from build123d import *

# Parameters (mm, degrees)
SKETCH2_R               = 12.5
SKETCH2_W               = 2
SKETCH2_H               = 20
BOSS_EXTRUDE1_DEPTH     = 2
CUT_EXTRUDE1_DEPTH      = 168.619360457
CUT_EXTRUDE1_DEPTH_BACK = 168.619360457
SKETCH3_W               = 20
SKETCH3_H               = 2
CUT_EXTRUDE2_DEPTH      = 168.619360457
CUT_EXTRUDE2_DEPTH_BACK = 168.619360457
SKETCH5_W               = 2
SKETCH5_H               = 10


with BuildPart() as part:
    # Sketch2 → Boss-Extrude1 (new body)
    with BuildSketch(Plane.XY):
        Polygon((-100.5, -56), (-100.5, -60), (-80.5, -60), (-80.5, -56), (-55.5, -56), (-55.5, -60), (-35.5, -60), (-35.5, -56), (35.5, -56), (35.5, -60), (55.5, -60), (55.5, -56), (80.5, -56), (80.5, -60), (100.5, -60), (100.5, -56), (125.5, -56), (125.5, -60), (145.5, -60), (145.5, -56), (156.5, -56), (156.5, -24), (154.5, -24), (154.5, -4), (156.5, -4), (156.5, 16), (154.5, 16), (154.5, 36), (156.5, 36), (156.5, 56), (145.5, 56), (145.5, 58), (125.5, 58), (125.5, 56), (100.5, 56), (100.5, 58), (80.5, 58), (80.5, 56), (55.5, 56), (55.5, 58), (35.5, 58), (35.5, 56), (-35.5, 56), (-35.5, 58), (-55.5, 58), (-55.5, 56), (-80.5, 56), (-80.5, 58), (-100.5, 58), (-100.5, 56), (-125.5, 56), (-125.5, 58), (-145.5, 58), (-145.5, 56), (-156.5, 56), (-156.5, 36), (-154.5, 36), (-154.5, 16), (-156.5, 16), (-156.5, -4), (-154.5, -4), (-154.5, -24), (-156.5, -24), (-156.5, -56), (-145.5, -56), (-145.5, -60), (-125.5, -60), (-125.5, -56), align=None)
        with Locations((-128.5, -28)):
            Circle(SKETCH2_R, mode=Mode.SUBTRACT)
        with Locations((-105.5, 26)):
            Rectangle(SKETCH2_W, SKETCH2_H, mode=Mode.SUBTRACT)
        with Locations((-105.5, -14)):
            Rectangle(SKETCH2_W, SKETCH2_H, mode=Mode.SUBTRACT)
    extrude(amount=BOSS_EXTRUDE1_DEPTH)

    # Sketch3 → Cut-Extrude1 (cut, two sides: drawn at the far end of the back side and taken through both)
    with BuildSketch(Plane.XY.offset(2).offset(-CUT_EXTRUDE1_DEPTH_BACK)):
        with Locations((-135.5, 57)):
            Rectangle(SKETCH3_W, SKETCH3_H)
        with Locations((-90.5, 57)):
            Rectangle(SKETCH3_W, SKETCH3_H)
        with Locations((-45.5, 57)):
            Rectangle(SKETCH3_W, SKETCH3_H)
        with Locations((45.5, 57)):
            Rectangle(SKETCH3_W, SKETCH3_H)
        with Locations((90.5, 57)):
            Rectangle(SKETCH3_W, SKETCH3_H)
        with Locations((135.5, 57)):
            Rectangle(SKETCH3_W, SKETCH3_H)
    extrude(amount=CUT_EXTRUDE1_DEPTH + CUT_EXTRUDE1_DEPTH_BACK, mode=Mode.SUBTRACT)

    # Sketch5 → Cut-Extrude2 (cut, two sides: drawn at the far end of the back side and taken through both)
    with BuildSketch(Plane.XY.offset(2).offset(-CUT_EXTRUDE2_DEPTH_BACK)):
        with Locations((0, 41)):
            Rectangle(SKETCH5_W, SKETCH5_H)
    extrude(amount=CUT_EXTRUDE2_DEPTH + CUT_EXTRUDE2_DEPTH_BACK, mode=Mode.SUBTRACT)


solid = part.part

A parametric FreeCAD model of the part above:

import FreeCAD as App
import Part
import Sketcher

V = App.Vector
Q = App.Units.Quantity

doc = App.newDocument("Part")
body = doc.addObject("PartDesign::Body", "Body")

# Sketch on XY plane
sketch1 = doc.addObject("Sketcher::SketchObject", "Sketch")
body.addObject(sketch1)
sketch1.AttachmentSupport = (doc.XY_Plane, [""])
sketch1.MapMode = "FlatFace"
sketch1.addGeometry([
    Part.LineSegment(V(-100.5, -56, 0), V(-100.5, -60, 0)),  # 0
    Part.LineSegment(V(-100.5, -60, 0), V(-80.5, -60, 0)),  # 1
    Part.LineSegment(V(-80.5, -60, 0), V(-80.5, -56, 0)),  # 2
    Part.LineSegment(V(-80.5, -56, 0), V(-55.5, -56, 0)),  # 3
    Part.LineSegment(V(-55.5, -56, 0), V(-55.5, -60, 0)),  # 4
    Part.LineSegment(V(-55.5, -60, 0), V(-35.5, -60, 0)),  # 5
    Part.LineSegment(V(-35.5, -60, 0), V(-35.5, -56, 0)),  # 6
    Part.LineSegment(V(-35.5, -56, 0), V(35.5, -56, 0)),  # 7
    Part.LineSegment(V(35.5, -56, 0), V(35.5, -60, 0)),  # 8
    Part.LineSegment(V(35.5, -60, 0), V(55.5, -60, 0)),  # 9
    Part.LineSegment(V(55.5, -60, 0), V(55.5, -56, 0)),  # 10
    Part.LineSegment(V(55.5, -56, 0), V(80.5, -56, 0)),  # 11
    Part.LineSegment(V(80.5, -56, 0), V(80.5, -60, 0)),  # 12
    Part.LineSegment(V(80.5, -60, 0), V(100.5, -60, 0)),  # 13
    Part.LineSegment(V(100.5, -60, 0), V(100.5, -56, 0)),  # 14
    Part.LineSegment(V(100.5, -56, 0), V(125.5, -56, 0)),  # 15
    Part.LineSegment(V(125.5, -56, 0), V(125.5, -60, 0)),  # 16
    Part.LineSegment(V(125.5, -60, 0), V(145.5, -60, 0)),  # 17
    Part.LineSegment(V(145.5, -60, 0), V(145.5, -56, 0)),  # 18
    Part.LineSegment(V(145.5, -56, 0), V(156.5, -56, 0)),  # 19
    Part.LineSegment(V(156.5, -56, 0), V(156.5, -24, 0)),  # 20
    Part.LineSegment(V(156.5, -24, 0), V(154.5, -24, 0)),  # 21
    Part.LineSegment(V(154.5, -24, 0), V(154.5, -4, 0)),  # 22
    Part.LineSegment(V(154.5, -4, 0), V(156.5, -4, 0)),  # 23
    Part.LineSegment(V(156.5, -4, 0), V(156.5, 16, 0)),  # 24
    Part.LineSegment(V(156.5, 16, 0), V(154.5, 16, 0)),  # 25
    Part.LineSegment(V(154.5, 16, 0), V(154.5, 36, 0)),  # 26
    Part.LineSegment(V(154.5, 36, 0), V(156.5, 36, 0)),  # 27
    Part.LineSegment(V(156.5, 36, 0), V(156.5, 56, 0)),  # 28
    Part.LineSegment(V(156.5, 56, 0), V(145.5, 56, 0)),  # 29
    Part.LineSegment(V(145.5, 56, 0), V(145.5, 58, 0)),  # 30
    Part.LineSegment(V(145.5, 58, 0), V(125.5, 58, 0)),  # 31
    Part.LineSegment(V(125.5, 58, 0), V(125.5, 56, 0)),  # 32
    Part.LineSegment(V(125.5, 56, 0), V(100.5, 56, 0)),  # 33
    Part.LineSegment(V(100.5, 56, 0), V(100.5, 58, 0)),  # 34
    Part.LineSegment(V(100.5, 58, 0), V(80.5, 58, 0)),  # 35
    Part.LineSegment(V(80.5, 58, 0), V(80.5, 56, 0)),  # 36
    Part.LineSegment(V(80.5, 56, 0), V(55.5, 56, 0)),  # 37
    Part.LineSegment(V(55.5, 56, 0), V(55.5, 58, 0)),  # 38
    Part.LineSegment(V(55.5, 58, 0), V(35.5, 58, 0)),  # 39
    Part.LineSegment(V(35.5, 58, 0), V(35.5, 56, 0)),  # 40
    Part.LineSegment(V(35.5, 56, 0), V(-35.5, 56, 0)),  # 41
    Part.LineSegment(V(-35.5, 56, 0), V(-35.5, 58, 0)),  # 42
    Part.LineSegment(V(-35.5, 58, 0), V(-55.5, 58, 0)),  # 43
    Part.LineSegment(V(-55.5, 58, 0), V(-55.5, 56, 0)),  # 44
    Part.LineSegment(V(-55.5, 56, 0), V(-80.5, 56, 0)),  # 45
    Part.LineSegment(V(-80.5, 56, 0), V(-80.5, 58, 0)),  # 46
    Part.LineSegment(V(-80.5, 58, 0), V(-100.5, 58, 0)),  # 47
    Part.LineSegment(V(-100.5, 58, 0), V(-100.5, 56, 0)),  # 48
    Part.LineSegment(V(-100.5, 56, 0), V(-125.5, 56, 0)),  # 49
    Part.LineSegment(V(-125.5, 56, 0), V(-125.5, 58, 0)),  # 50
    Part.LineSegment(V(-125.5, 58, 0), V(-145.5, 58, 0)),  # 51
    Part.LineSegment(V(-145.5, 58, 0), V(-145.5, 56, 0)),  # 52
    Part.LineSegment(V(-145.5, 56, 0), V(-156.5, 56, 0)),  # 53
    Part.LineSegment(V(-156.5, 56, 0), V(-156.5, 36, 0)),  # 54
    Part.LineSegment(V(-156.5, 36, 0), V(-154.5, 36, 0)),  # 55
    Part.LineSegment(V(-154.5, 36, 0), V(-154.5, 16, 0)),  # 56
    Part.LineSegment(V(-154.5, 16, 0), V(-156.5, 16, 0)),  # 57
    Part.LineSegment(V(-156.5, 16, 0), V(-156.5, -4, 0)),  # 58
    Part.LineSegment(V(-156.5, -4, 0), V(-154.5, -4, 0)),  # 59
    Part.LineSegment(V(-154.5, -4, 0), V(-154.5, -24, 0)),  # 60
    Part.LineSegment(V(-154.5, -24, 0), V(-156.5, -24, 0)),  # 61
    Part.LineSegment(V(-156.5, -24, 0), V(-156.5, -56, 0)),  # 62
    Part.LineSegment(V(-156.5, -56, 0), V(-145.5, -56, 0)),  # 63
    Part.LineSegment(V(-145.5, -56, 0), V(-145.5, -60, 0)),  # 64
    Part.LineSegment(V(-145.5, -60, 0), V(-125.5, -60, 0)),  # 65
    Part.LineSegment(V(-125.5, -60, 0), V(-125.5, -56, 0)),  # 66
    Part.LineSegment(V(-125.5, -56, 0), V(-100.5, -56, 0)),  # 67
    Part.Circle(V(-128.5, -28, 0), V(0, 0, 1), 12.5),  # 68
    Part.LineSegment(V(-104.5, -24, 0), V(-106.5, -24, 0)),  # 69
    Part.LineSegment(V(-106.5, -24, 0), V(-106.5, -4, 0)),  # 70
    Part.LineSegment(V(-106.5, -4, 0), V(-104.5, -4, 0)),  # 71
    Part.LineSegment(V(-104.5, -4, 0), V(-104.5, -24, 0)),  # 72
    Part.LineSegment(V(-104.5, 16, 0), V(-106.5, 16, 0)),  # 73
    Part.LineSegment(V(-106.5, 16, 0), V(-106.5, 36, 0)),  # 74
    Part.LineSegment(V(-106.5, 36, 0), V(-104.5, 36, 0)),  # 75
    Part.LineSegment(V(-104.5, 36, 0), V(-104.5, 16, 0)),  # 76
], False)
sketch1.addConstraint([
    Sketcher.Constraint("Coincident", 0, 2, 1, 1),
    Sketcher.Constraint("Coincident", 1, 2, 2, 1),
    Sketcher.Constraint("Coincident", 2, 2, 3, 1),
    Sketcher.Constraint("Coincident", 3, 2, 4, 1),
    Sketcher.Constraint("Coincident", 4, 2, 5, 1),
    Sketcher.Constraint("Coincident", 5, 2, 6, 1),
    Sketcher.Constraint("Coincident", 6, 2, 7, 1),
    Sketcher.Constraint("Coincident", 7, 2, 8, 1),
    Sketcher.Constraint("Coincident", 8, 2, 9, 1),
    Sketcher.Constraint("Coincident", 9, 2, 10, 1),
    Sketcher.Constraint("Coincident", 10, 2, 11, 1),
    Sketcher.Constraint("Coincident", 11, 2, 12, 1),
    Sketcher.Constraint("Coincident", 12, 2, 13, 1),
    Sketcher.Constraint("Coincident", 13, 2, 14, 1),
    Sketcher.Constraint("Coincident", 14, 2, 15, 1),
    Sketcher.Constraint("Coincident", 15, 2, 16, 1),
    Sketcher.Constraint("Coincident", 16, 2, 17, 1),
    Sketcher.Constraint("Coincident", 17, 2, 18, 1),
    Sketcher.Constraint("Coincident", 18, 2, 19, 1),
    Sketcher.Constraint("Coincident", 19, 2, 20, 1),
    Sketcher.Constraint("Coincident", 20, 2, 21, 1),
    Sketcher.Constraint("Coincident", 21, 2, 22, 1),
    Sketcher.Constraint("Coincident", 22, 2, 23, 1),
    Sketcher.Constraint("Coincident", 23, 2, 24, 1),
    Sketcher.Constraint("Coincident", 24, 2, 25, 1),
    Sketcher.Constraint("Coincident", 25, 2, 26, 1),
    Sketcher.Constraint("Coincident", 26, 2, 27, 1),
    Sketcher.Constraint("Coincident", 27, 2, 28, 1),
    Sketcher.Constraint("Coincident", 28, 2, 29, 1),
    Sketcher.Constraint("Coincident", 29, 2, 30, 1),
    Sketcher.Constraint("Coincident", 30, 2, 31, 1),
    Sketcher.Constraint("Coincident", 31, 2, 32, 1),
    Sketcher.Constraint("Coincident", 32, 2, 33, 1),
    Sketcher.Constraint("Coincident", 33, 2, 34, 1),
    Sketcher.Constraint("Coincident", 34, 2, 35, 1),
    Sketcher.Constraint("Coincident", 35, 2, 36, 1),
    Sketcher.Constraint("Coincident", 36, 2, 37, 1),
    Sketcher.Constraint("Coincident", 37, 2, 38, 1),
    Sketcher.Constraint("Coincident", 38, 2, 39, 1),
    Sketcher.Constraint("Coincident", 39, 2, 40, 1),
    Sketcher.Constraint("Coincident", 40, 2, 41, 1),
    Sketcher.Constraint("Coincident", 41, 2, 42, 1),
    Sketcher.Constraint("Coincident", 42, 2, 43, 1),
    Sketcher.Constraint("Coincident", 43, 2, 44, 1),
    Sketcher.Constraint("Coincident", 44, 2, 45, 1),
    Sketcher.Constraint("Coincident", 45, 2, 46, 1),
    Sketcher.Constraint("Coincident", 46, 2, 47, 1),
    Sketcher.Constraint("Coincident", 47, 2, 48, 1),
    Sketcher.Constraint("Coincident", 48, 2, 49, 1),
    Sketcher.Constraint("Coincident", 49, 2, 50, 1),
    Sketcher.Constraint("Coincident", 50, 2, 51, 1),
    Sketcher.Constraint("Coincident", 51, 2, 52, 1),
    Sketcher.Constraint("Coincident", 52, 2, 53, 1),
    Sketcher.Constraint("Coincident", 53, 2, 54, 1),
    Sketcher.Constraint("Coincident", 54, 2, 55, 1),
    Sketcher.Constraint("Coincident", 55, 2, 56, 1),
    Sketcher.Constraint("Coincident", 56, 2, 57, 1),
    Sketcher.Constraint("Coincident", 57, 2, 58, 1),
    Sketcher.Constraint("Coincident", 58, 2, 59, 1),
    Sketcher.Constraint("Coincident", 59, 2, 60, 1),
    Sketcher.Constraint("Coincident", 60, 2, 61, 1),
    Sketcher.Constraint("Coincident", 61, 2, 62, 1),
    Sketcher.Constraint("Coincident", 62, 2, 63, 1),
    Sketcher.Constraint("Coincident", 63, 2, 64, 1),
    Sketcher.Constraint("Coincident", 64, 2, 65, 1),
    Sketcher.Constraint("Coincident", 65, 2, 66, 1),
    Sketcher.Constraint("Coincident", 66, 2, 67, 1),
    Sketcher.Constraint("Coincident", 67, 2, 0, 1),
    Sketcher.Constraint("Coincident", 69, 2, 70, 1),
    Sketcher.Constraint("Coincident", 70, 2, 71, 1),
    Sketcher.Constraint("Coincident", 71, 2, 72, 1),
    Sketcher.Constraint("Coincident", 72, 2, 69, 1),
    Sketcher.Constraint("Coincident", 73, 2, 74, 1),
    Sketcher.Constraint("Coincident", 74, 2, 75, 1),
    Sketcher.Constraint("Coincident", 75, 2, 76, 1),
    Sketcher.Constraint("Coincident", 76, 2, 73, 1),
    Sketcher.Constraint("Vertical", 0),
    Sketcher.Constraint("Horizontal", 1),
    Sketcher.Constraint("Vertical", 2),
    Sketcher.Constraint("Horizontal", 3),
    Sketcher.Constraint("Vertical", 4),
    Sketcher.Constraint("Horizontal", 5),
    Sketcher.Constraint("Vertical", 6),
    Sketcher.Constraint("Horizontal", 7),
    Sketcher.Constraint("Vertical", 8),
    Sketcher.Constraint("Horizontal", 9),
    Sketcher.Constraint("Vertical", 10),
    Sketcher.Constraint("Horizontal", 11),
    Sketcher.Constraint("Vertical", 12),
    Sketcher.Constraint("Horizontal", 13),
    Sketcher.Constraint("Vertical", 14),
    Sketcher.Constraint("Horizontal", 15),
    Sketcher.Constraint("Vertical", 16),
    Sketcher.Constraint("Horizontal", 17),
    Sketcher.Constraint("Vertical", 18),
    Sketcher.Constraint("Horizontal", 19),
    Sketcher.Constraint("Vertical", 20),
    Sketcher.Constraint("Horizontal", 21),
    Sketcher.Constraint("Vertical", 22),
    Sketcher.Constraint("Horizontal", 23),
    Sketcher.Constraint("Vertical", 24),
    Sketcher.Constraint("Horizontal", 25),
    Sketcher.Constraint("Vertical", 26),
    Sketcher.Constraint("Horizontal", 27),
    Sketcher.Constraint("Vertical", 28),
    Sketcher.Constraint("Horizontal", 29),
    Sketcher.Constraint("Vertical", 30),
    Sketcher.Constraint("Horizontal", 31),
    Sketcher.Constraint("Vertical", 32),
    Sketcher.Constraint("Horizontal", 33),
    Sketcher.Constraint("Vertical", 34),
    Sketcher.Constraint("Horizontal", 35),
    Sketcher.Constraint("Vertical", 36),
    Sketcher.Constraint("Horizontal", 37),
    Sketcher.Constraint("Vertical", 38),
    Sketcher.Constraint("Horizontal", 39),
    Sketcher.Constraint("Vertical", 40),
    Sketcher.Constraint("Horizontal", 41),
    Sketcher.Constraint("Vertical", 42),
    Sketcher.Constraint("Horizontal", 43),
    Sketcher.Constraint("Vertical", 44),
    Sketcher.Constraint("Horizontal", 45),
    Sketcher.Constraint("Vertical", 46),
    Sketcher.Constraint("Horizontal", 47),
    Sketcher.Constraint("Vertical", 48),
    Sketcher.Constraint("Horizontal", 49),
    Sketcher.Constraint("Vertical", 50),
    Sketcher.Constraint("Horizontal", 51),
    Sketcher.Constraint("Vertical", 52),
    Sketcher.Constraint("Horizontal", 53),
    Sketcher.Constraint("Vertical", 54),
    Sketcher.Constraint("Horizontal", 55),
    Sketcher.Constraint("Vertical", 56),
    Sketcher.Constraint("Horizontal", 57),
    Sketcher.Constraint("Vertical", 58),
    Sketcher.Constraint("Horizontal", 59),
    Sketcher.Constraint("Vertical", 60),
    Sketcher.Constraint("Horizontal", 61),
    Sketcher.Constraint("Vertical", 62),
    Sketcher.Constraint("Horizontal", 63),
    Sketcher.Constraint("Vertical", 64),
    Sketcher.Constraint("Horizontal", 65),
    Sketcher.Constraint("Vertical", 66),
    Sketcher.Constraint("Horizontal", 67),
    Sketcher.Constraint("Horizontal", 69),
    Sketcher.Constraint("Vertical", 70),
    Sketcher.Constraint("Horizontal", 71),
    Sketcher.Constraint("Vertical", 72),
    Sketcher.Constraint("Horizontal", 73),
    Sketcher.Constraint("Vertical", 74),
    Sketcher.Constraint("Horizontal", 75),
    Sketcher.Constraint("Vertical", 76),
    Sketcher.Constraint("Symmetric", 2, 2, 36, 2, -1, 1),
    Sketcher.Constraint("Symmetric", 6, 2, 40, 2, -1, 1),
    Sketcher.Constraint("Symmetric", 10, 2, 44, 2, -1, 1),
    Sketcher.Constraint("Symmetric", 14, 2, 48, 2, -1, 1),
    Sketcher.Constraint("Symmetric", 18, 2, 52, 2, -1, 1),
    Sketcher.Constraint("Symmetric", 28, 2, 62, 2, -1, 1),
    Sketcher.Constraint("Symmetric", 32, 2, 66, 2, -1, 1),
    Sketcher.Constraint("Symmetric", 5, 2, 8, 2, -2),
    Sketcher.Constraint("Symmetric", 3, 2, 10, 2, -2),
    Sketcher.Constraint("Symmetric", 1, 2, 12, 2, -2),
    Sketcher.Constraint("Symmetric", 39, 2, 42, 2, -2),
    Sketcher.Constraint("Symmetric", 35, 2, 46, 2, -2),
    Sketcher.Constraint("Symmetric", 33, 2, 48, 2, -2),
    Sketcher.Constraint("Symmetric", 31, 2, 50, 2, -2),
    Sketcher.Constraint("Symmetric", 29, 2, 52, 2, -2),
    Sketcher.Constraint("Symmetric", 27, 2, 54, 2, -2),
    Sketcher.Constraint("Symmetric", 25, 2, 56, 2, -2),
    Sketcher.Constraint("Symmetric", 23, 2, 58, 2, -2),
    Sketcher.Constraint("Symmetric", 21, 2, 60, 2, -2),
    Sketcher.Constraint("Symmetric", 17, 2, 64, 2, -2),
    Sketcher.Constraint("Horizontal", 1, 2, 4, 2),
    Sketcher.Constraint("Horizontal", 3, 2, 6, 2),
    Sketcher.Constraint("Horizontal", 11, 2, 14, 2),
    Sketcher.Constraint("Horizontal", 13, 2, 16, 2),
    Sketcher.Constraint("Horizontal", 15, 2, 18, 2),
    Sketcher.Constraint("Horizontal", 31, 2, 34, 2),
    Sketcher.Constraint("Horizontal", 35, 2, 38, 2),
    Sketcher.Constraint("Horizontal", 61, 2, 69, 2),
    Sketcher.Constraint("Horizontal", 59, 2, 70, 2),
    Sketcher.Constraint("Horizontal", 57, 2, 73, 2),
    Sketcher.Constraint("Horizontal", 55, 2, 74, 2),
    Sketcher.Constraint("Vertical", 20, 2, 23, 2),
    Sketcher.Constraint("Vertical", 22, 2, 25, 2),
    Sketcher.Constraint("Vertical", 24, 2, 27, 2),
    Sketcher.Constraint("Vertical", 16, 2, 31, 2),
    Sketcher.Constraint("Vertical", 10, 2, 37, 2),
    Sketcher.Constraint("Vertical", 0, 2, 47, 2),
    Sketcher.Constraint("Vertical", 70, 2, 73, 2),
    Sketcher.Constraint("Vertical", 72, 2, 75, 2),
    Sketcher.Constraint("Equal", 1, 5),
    Sketcher.Constraint("Equal", 11, 15),
    Sketcher.Constraint("Equal", 13, 17),
    Sketcher.Constraint("Equal", 61, 69),
    Sketcher.Constraint("Equal", 65, 22),
    Sketcher.Constraint("Equal", 22, 24),
    Sketcher.Constraint("Equal", 24, 26),
    Sketcher.Constraint("Equal", 26, 28),
    Sketcher.Constraint("Equal", 75, 30),
    Sketcher.Constraint("Diameter", 68, Q("25 mm")),
    Sketcher.Constraint("DistanceX", 1, 1, 1, 2, Q("20 mm")),
    Sketcher.Constraint("DistanceX", 3, 1, 3, 2, Q("25 mm")),
    Sketcher.Constraint("DistanceX", 7, 1, 7, 2, Q("71 mm")),
    Sketcher.Constraint("DistanceX", 19, 1, 19, 2, Q("11 mm")),
    Sketcher.Constraint("DistanceX", 21, 2, 21, 1, Q("2 mm")),
    Sketcher.Constraint("DistanceY", 0, 2, 0, 1, Q("4 mm")),
    Sketcher.Constraint("DistanceY", 20, 1, 20, 2, Q("32 mm")),
    Sketcher.Constraint("DistanceY", 68, 3, -1, 1, Q("28 mm")),
    Sketcher.Constraint("DistanceX", 68, 3, -1, 1, Q("128.5 mm")),
    Sketcher.Constraint("DistanceX", 69, 2, -1, 1, Q("106.5 mm")),
])
pad1 = doc.addObject("PartDesign::Pad", "Pad")
body.addObject(pad1)
pad1.Profile = sketch1
pad1.Length = 2

# Sketch on XY plane
sketch2 = doc.addObject("Sketcher::SketchObject", "Sketch001")
body.addObject(sketch2)
sketch2.AttachmentSupport = (doc.XY_Plane, [""])
sketch2.MapMode = "FlatFace"
sketch2.AttachmentOffset = App.Placement(V(0, 0, 2), App.Rotation())
sketch2.addGeometry([
    Part.LineSegment(V(-145.5, 58, 0), V(-145.5, 56, 0)),  # 0
    Part.LineSegment(V(-145.5, 56, 0), V(-125.5, 56, 0)),  # 1
    Part.LineSegment(V(-125.5, 56, 0), V(-125.5, 58, 0)),  # 2
    Part.LineSegment(V(-125.5, 58, 0), V(-145.5, 58, 0)),  # 3
    Part.LineSegment(V(-100.5, 58, 0), V(-100.5, 56, 0)),  # 4
    Part.LineSegment(V(-100.5, 56, 0), V(-80.5, 56, 0)),  # 5
    Part.LineSegment(V(-80.5, 56, 0), V(-80.5, 58, 0)),  # 6
    Part.LineSegment(V(-80.5, 58, 0), V(-100.5, 58, 0)),  # 7
    Part.LineSegment(V(-55.5, 58, 0), V(-55.5, 56, 0)),  # 8
    Part.LineSegment(V(-55.5, 56, 0), V(-35.5, 56, 0)),  # 9
    Part.LineSegment(V(-35.5, 56, 0), V(-35.5, 58, 0)),  # 10
    Part.LineSegment(V(-35.5, 58, 0), V(-55.5, 58, 0)),  # 11
    Part.LineSegment(V(35.5, 58, 0), V(35.5, 56, 0)),  # 12
    Part.LineSegment(V(35.5, 56, 0), V(55.5, 56, 0)),  # 13
    Part.LineSegment(V(55.5, 56, 0), V(55.5, 58, 0)),  # 14
    Part.LineSegment(V(55.5, 58, 0), V(35.5, 58, 0)),  # 15
    Part.LineSegment(V(80.5, 58, 0), V(80.5, 56, 0)),  # 16
    Part.LineSegment(V(80.5, 56, 0), V(100.5, 56, 0)),  # 17
    Part.LineSegment(V(100.5, 56, 0), V(100.5, 58, 0)),  # 18
    Part.LineSegment(V(100.5, 58, 0), V(80.5, 58, 0)),  # 19
    Part.LineSegment(V(125.5, 58, 0), V(125.5, 56, 0)),  # 20
    Part.LineSegment(V(125.5, 56, 0), V(145.5, 56, 0)),  # 21
    Part.LineSegment(V(145.5, 56, 0), V(145.5, 58, 0)),  # 22
    Part.LineSegment(V(145.5, 58, 0), V(125.5, 58, 0)),  # 23
], False)
sketch2.addConstraint([
    Sketcher.Constraint("Coincident", 0, 2, 1, 1),
    Sketcher.Constraint("Coincident", 1, 2, 2, 1),
    Sketcher.Constraint("Coincident", 2, 2, 3, 1),
    Sketcher.Constraint("Coincident", 3, 2, 0, 1),
    Sketcher.Constraint("Coincident", 4, 2, 5, 1),
    Sketcher.Constraint("Coincident", 5, 2, 6, 1),
    Sketcher.Constraint("Coincident", 6, 2, 7, 1),
    Sketcher.Constraint("Coincident", 7, 2, 4, 1),
    Sketcher.Constraint("Coincident", 8, 2, 9, 1),
    Sketcher.Constraint("Coincident", 9, 2, 10, 1),
    Sketcher.Constraint("Coincident", 10, 2, 11, 1),
    Sketcher.Constraint("Coincident", 11, 2, 8, 1),
    Sketcher.Constraint("Coincident", 12, 2, 13, 1),
    Sketcher.Constraint("Coincident", 13, 2, 14, 1),
    Sketcher.Constraint("Coincident", 14, 2, 15, 1),
    Sketcher.Constraint("Coincident", 15, 2, 12, 1),
    Sketcher.Constraint("Coincident", 16, 2, 17, 1),
    Sketcher.Constraint("Coincident", 17, 2, 18, 1),
    Sketcher.Constraint("Coincident", 18, 2, 19, 1),
    Sketcher.Constraint("Coincident", 19, 2, 16, 1),
    Sketcher.Constraint("Coincident", 20, 2, 21, 1),
    Sketcher.Constraint("Coincident", 21, 2, 22, 1),
    Sketcher.Constraint("Coincident", 22, 2, 23, 1),
    Sketcher.Constraint("Coincident", 23, 2, 20, 1),
    Sketcher.Constraint("Vertical", 0),
    Sketcher.Constraint("Horizontal", 1),
    Sketcher.Constraint("Vertical", 2),
    Sketcher.Constraint("Horizontal", 3),
    Sketcher.Constraint("Vertical", 4),
    Sketcher.Constraint("Horizontal", 5),
    Sketcher.Constraint("Vertical", 6),
    Sketcher.Constraint("Horizontal", 7),
    Sketcher.Constraint("Vertical", 8),
    Sketcher.Constraint("Horizontal", 9),
    Sketcher.Constraint("Vertical", 10),
    Sketcher.Constraint("Horizontal", 11),
    Sketcher.Constraint("Vertical", 12),
    Sketcher.Constraint("Horizontal", 13),
    Sketcher.Constraint("Vertical", 14),
    Sketcher.Constraint("Horizontal", 15),
    Sketcher.Constraint("Vertical", 16),
    Sketcher.Constraint("Horizontal", 17),
    Sketcher.Constraint("Vertical", 18),
    Sketcher.Constraint("Horizontal", 19),
    Sketcher.Constraint("Vertical", 20),
    Sketcher.Constraint("Horizontal", 21),
    Sketcher.Constraint("Vertical", 22),
    Sketcher.Constraint("Horizontal", 23),
    Sketcher.Constraint("Symmetric", 9, 2, 12, 2, -2),
    Sketcher.Constraint("Symmetric", 11, 2, 14, 2, -2),
    Sketcher.Constraint("Symmetric", 5, 2, 16, 2, -2),
    Sketcher.Constraint("Symmetric", 7, 2, 18, 2, -2),
    Sketcher.Constraint("Symmetric", 1, 2, 20, 2, -2),
    Sketcher.Constraint("Symmetric", 3, 2, 22, 2, -2),
    Sketcher.Constraint("Horizontal", 1, 2, 4, 2),
    Sketcher.Constraint("Horizontal", 3, 2, 6, 2),
    Sketcher.Constraint("Horizontal", 5, 2, 8, 2),
    Sketcher.Constraint("Horizontal", 7, 2, 10, 2),
    Sketcher.Constraint("Equal", 3, 5),
    Sketcher.Constraint("Equal", 7, 9),
    Sketcher.Constraint("DistanceX", 1, 1, 1, 2, Q("20 mm")),
    Sketcher.Constraint("DistanceY", 0, 2, 0, 1, Q("2 mm")),
    Sketcher.Constraint("DistanceY", -1, 1, 0, 2, Q("56 mm")),
    Sketcher.Constraint("DistanceX", 1, 2, 4, 2, Q("25 mm")),
    Sketcher.Constraint("DistanceX", 5, 2, 8, 2, Q("25 mm")),
    Sketcher.Constraint("DistanceX", 9, 2, 12, 2, Q("71 mm")),
])
pocket1 = doc.addObject("PartDesign::Pocket", "Pocket")
body.addObject(pocket1)
pocket1.Profile = sketch2
pocket1.Type = "ThroughAll"
pocket1.Midplane = True

# Sketch on XY plane
sketch3 = doc.addObject("Sketcher::SketchObject", "Sketch002")
body.addObject(sketch3)
sketch3.AttachmentSupport = (doc.XY_Plane, [""])
sketch3.MapMode = "FlatFace"
sketch3.AttachmentOffset = App.Placement(V(0, 0, 2), App.Rotation())
sketch3.addGeometry([
    Part.LineSegment(V(-1, 46, 0), V(-1, 36, 0)),
    Part.LineSegment(V(-1, 36, 0), V(1, 36, 0)),
    Part.LineSegment(V(1, 36, 0), V(1, 46, 0)),
    Part.LineSegment(V(1, 46, 0), V(-1, 46, 0)),
], False)
sketch3.addConstraint([
    Sketcher.Constraint("Coincident", 0, 2, 1, 1),
    Sketcher.Constraint("Coincident", 1, 2, 2, 1),
    Sketcher.Constraint("Coincident", 2, 2, 3, 1),
    Sketcher.Constraint("Coincident", 3, 2, 0, 1),
    Sketcher.Constraint("Vertical", 0),
    Sketcher.Constraint("Horizontal", 1),
    Sketcher.Constraint("Vertical", 2),
    Sketcher.Constraint("Horizontal", 3),
    Sketcher.Constraint("DistanceX", 1, 1, 1, 2, Q("2 mm")),
    Sketcher.Constraint("DistanceY", 0, 2, 0, 1, Q("10 mm")),
    Sketcher.Constraint("DistanceX", 0, 2, -1, 1, Q("1 mm")),
    Sketcher.Constraint("DistanceY", -1, 1, 0, 2, Q("36 mm")),
])
pocket2 = doc.addObject("PartDesign::Pocket", "Pocket001")
body.addObject(pocket2)
pocket2.Profile = sketch3
pocket2.Type = "ThroughAll"
pocket2.Midplane = True

doc.recompute()
